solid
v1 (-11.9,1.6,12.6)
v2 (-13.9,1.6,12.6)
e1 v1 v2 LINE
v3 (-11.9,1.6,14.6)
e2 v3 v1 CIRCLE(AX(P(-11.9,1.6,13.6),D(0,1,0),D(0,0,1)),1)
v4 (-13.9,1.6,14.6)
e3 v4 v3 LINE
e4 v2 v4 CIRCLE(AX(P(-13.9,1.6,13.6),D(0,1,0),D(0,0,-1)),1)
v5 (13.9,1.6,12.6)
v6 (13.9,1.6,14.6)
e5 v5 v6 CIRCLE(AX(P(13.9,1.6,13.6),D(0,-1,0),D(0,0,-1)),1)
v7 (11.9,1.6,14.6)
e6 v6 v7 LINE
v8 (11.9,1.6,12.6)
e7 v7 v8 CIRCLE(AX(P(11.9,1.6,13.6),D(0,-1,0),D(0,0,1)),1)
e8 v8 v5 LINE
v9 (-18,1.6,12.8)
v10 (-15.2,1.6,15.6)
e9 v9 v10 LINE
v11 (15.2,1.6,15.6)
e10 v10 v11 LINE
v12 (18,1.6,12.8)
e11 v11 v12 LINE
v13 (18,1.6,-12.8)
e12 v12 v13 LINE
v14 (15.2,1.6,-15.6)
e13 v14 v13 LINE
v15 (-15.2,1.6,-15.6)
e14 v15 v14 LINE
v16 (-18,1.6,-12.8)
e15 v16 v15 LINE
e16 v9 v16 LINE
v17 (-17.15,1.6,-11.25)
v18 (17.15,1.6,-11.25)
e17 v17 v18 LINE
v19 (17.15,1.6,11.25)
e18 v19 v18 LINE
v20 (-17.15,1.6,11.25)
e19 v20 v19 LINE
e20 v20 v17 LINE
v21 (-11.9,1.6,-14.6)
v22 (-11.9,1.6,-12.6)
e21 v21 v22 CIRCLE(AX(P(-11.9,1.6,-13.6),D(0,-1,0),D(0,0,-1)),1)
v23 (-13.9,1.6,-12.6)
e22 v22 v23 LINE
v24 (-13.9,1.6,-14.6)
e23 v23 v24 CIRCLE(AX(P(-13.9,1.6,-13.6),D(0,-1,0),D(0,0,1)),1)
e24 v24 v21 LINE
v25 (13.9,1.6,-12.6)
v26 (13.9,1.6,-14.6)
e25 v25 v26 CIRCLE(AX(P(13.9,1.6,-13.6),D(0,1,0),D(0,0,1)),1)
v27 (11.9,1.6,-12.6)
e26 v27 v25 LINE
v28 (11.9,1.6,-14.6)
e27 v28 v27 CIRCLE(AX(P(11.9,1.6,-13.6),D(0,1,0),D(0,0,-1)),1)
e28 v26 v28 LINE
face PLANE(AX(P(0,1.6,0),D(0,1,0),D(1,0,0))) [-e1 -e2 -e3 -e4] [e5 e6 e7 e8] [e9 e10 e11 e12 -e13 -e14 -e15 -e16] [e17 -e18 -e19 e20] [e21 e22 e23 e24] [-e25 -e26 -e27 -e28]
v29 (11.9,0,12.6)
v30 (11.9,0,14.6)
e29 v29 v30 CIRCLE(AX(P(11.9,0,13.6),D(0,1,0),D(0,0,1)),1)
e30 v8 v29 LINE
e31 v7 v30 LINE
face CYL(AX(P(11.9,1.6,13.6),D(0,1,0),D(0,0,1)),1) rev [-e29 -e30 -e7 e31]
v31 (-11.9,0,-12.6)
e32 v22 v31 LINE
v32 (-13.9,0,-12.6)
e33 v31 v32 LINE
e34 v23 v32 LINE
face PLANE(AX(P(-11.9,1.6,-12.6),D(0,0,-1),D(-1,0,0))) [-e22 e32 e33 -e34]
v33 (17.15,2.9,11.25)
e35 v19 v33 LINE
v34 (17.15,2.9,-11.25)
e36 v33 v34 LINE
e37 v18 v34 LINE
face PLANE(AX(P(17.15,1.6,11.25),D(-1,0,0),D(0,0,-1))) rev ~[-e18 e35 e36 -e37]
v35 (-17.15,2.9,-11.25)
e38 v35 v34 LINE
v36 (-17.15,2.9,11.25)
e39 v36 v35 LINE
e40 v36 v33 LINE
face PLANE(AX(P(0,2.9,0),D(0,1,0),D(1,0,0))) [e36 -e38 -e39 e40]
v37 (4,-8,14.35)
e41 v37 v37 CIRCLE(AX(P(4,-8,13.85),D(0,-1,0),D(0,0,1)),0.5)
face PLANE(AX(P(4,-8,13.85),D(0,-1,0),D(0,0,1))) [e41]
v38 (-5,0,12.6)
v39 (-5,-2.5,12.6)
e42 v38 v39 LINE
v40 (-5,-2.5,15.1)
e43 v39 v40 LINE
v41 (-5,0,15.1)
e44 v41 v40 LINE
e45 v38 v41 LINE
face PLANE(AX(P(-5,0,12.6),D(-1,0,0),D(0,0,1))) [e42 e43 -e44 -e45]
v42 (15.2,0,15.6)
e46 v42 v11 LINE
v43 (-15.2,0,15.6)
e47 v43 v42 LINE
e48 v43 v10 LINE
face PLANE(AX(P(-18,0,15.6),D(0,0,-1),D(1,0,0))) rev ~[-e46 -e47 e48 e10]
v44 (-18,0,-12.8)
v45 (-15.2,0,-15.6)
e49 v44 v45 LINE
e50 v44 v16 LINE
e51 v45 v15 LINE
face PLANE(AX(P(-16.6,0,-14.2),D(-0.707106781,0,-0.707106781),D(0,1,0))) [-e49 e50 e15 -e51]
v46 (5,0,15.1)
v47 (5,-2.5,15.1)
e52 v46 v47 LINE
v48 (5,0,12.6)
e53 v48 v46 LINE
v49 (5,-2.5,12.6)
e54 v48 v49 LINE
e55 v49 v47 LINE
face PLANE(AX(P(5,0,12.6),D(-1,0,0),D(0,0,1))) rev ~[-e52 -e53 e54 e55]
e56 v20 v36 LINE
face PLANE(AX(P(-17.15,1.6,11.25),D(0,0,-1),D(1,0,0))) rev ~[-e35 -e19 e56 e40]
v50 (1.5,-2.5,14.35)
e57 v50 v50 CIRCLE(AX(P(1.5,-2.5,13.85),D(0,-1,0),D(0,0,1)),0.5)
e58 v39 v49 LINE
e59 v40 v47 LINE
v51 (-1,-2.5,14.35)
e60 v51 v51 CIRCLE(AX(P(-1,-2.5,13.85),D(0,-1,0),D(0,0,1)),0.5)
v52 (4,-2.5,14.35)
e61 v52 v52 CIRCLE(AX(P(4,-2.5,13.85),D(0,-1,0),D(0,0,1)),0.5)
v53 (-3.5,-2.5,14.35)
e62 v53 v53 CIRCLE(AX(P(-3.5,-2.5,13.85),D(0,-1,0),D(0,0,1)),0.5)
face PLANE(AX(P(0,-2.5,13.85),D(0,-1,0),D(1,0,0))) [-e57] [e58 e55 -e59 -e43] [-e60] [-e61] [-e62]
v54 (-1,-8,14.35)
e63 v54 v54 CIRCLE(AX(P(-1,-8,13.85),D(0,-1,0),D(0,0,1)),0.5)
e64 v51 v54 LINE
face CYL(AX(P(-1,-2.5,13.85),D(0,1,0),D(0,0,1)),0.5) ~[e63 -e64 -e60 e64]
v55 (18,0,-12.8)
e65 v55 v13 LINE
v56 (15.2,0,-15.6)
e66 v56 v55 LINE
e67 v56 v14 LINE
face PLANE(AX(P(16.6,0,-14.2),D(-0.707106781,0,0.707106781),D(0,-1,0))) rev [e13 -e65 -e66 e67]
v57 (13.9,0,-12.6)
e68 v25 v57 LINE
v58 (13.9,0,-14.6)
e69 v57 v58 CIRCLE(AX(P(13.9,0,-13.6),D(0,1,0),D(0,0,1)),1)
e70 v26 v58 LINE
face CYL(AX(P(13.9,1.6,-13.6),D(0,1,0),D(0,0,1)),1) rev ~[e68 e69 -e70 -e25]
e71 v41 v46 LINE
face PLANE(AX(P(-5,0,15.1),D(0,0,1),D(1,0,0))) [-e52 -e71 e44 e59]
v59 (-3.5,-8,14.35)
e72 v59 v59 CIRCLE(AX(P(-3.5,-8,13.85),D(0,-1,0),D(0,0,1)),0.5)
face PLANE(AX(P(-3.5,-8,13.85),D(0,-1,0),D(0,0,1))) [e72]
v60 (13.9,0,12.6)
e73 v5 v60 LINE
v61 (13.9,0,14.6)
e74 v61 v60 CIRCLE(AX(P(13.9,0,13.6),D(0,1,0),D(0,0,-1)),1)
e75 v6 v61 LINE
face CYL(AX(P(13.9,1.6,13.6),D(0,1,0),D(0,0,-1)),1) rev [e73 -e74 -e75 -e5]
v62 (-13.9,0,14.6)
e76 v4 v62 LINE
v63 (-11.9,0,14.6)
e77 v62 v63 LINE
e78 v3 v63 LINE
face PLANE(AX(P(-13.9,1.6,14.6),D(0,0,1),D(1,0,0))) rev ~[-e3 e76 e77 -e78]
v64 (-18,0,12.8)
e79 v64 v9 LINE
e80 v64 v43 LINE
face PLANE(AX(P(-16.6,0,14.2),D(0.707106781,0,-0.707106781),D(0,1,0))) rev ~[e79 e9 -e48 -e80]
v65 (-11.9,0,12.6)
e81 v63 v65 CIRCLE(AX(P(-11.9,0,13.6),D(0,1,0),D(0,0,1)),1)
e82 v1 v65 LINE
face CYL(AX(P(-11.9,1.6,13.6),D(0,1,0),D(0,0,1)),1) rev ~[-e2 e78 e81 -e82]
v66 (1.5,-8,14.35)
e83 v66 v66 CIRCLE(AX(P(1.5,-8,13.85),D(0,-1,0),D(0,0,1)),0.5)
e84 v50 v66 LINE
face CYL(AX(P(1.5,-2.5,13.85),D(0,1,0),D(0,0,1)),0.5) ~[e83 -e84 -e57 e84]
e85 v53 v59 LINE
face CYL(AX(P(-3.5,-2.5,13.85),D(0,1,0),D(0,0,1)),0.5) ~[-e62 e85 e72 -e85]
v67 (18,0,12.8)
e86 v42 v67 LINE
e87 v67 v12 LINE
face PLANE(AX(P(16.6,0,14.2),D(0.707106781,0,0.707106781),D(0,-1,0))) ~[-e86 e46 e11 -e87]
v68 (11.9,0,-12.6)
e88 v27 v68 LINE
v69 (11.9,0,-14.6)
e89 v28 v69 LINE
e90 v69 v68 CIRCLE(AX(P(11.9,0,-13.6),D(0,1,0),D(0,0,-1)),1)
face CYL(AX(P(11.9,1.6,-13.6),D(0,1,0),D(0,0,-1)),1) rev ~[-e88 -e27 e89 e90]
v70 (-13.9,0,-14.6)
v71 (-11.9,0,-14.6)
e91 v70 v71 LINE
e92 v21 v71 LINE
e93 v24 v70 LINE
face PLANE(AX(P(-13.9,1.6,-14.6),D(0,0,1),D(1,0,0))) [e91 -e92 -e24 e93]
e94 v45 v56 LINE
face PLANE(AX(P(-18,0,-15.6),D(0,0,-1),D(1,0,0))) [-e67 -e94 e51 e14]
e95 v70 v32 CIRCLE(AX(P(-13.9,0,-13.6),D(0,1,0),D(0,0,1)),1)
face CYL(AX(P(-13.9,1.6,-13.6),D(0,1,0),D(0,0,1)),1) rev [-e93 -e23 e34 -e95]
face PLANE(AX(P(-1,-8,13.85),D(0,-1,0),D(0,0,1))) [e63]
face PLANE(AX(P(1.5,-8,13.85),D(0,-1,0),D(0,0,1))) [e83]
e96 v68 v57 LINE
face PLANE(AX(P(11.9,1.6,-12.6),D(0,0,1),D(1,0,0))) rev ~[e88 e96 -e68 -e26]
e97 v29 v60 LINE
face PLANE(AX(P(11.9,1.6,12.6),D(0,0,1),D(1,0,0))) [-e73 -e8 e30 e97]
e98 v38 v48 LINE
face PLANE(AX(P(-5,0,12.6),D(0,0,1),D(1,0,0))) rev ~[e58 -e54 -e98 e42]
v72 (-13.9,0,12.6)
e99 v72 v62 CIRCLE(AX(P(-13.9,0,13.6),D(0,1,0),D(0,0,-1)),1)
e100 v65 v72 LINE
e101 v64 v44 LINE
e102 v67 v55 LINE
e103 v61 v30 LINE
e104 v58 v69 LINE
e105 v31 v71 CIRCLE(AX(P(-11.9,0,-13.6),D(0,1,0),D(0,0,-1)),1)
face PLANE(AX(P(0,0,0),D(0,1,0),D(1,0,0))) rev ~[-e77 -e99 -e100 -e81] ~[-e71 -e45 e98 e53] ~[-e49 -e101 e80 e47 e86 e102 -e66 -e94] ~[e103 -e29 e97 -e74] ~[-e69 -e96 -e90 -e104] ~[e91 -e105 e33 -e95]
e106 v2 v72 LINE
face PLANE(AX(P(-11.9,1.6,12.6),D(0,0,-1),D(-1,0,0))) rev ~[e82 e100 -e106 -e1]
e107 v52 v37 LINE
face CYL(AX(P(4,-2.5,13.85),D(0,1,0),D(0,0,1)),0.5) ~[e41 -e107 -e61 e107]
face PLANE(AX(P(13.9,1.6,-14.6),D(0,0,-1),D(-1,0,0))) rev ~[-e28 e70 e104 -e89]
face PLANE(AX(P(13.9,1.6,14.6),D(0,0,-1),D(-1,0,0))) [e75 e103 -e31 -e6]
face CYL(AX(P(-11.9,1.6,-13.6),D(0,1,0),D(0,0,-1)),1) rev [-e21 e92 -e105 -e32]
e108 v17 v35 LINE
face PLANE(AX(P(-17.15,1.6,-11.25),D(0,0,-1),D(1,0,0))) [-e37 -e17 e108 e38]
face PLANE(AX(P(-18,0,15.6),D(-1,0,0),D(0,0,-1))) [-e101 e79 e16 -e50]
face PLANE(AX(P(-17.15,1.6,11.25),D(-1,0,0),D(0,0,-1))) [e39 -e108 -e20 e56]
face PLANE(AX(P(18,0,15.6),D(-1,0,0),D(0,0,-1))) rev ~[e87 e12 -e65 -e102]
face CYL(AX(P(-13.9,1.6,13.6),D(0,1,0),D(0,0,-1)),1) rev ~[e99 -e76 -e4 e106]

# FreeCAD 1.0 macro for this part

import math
import FreeCAD as App
import Part
import Sketcher


def edges_at(feature, points):
    """Names of the edges that pass closest to the given points."""
    edges = feature.Shape.Edges
    near = lambda p: min(range(len(edges)), key=lambda i: edges[i].distToShape(Part.Vertex(*p))[0])
    return sorted({f"Edge{near(p) + 1}" for p in points})


def add_polygon(sketch, points):
    """Adds a closed chain of lines whose ends are joined by coincident constraints."""
    first, n = sketch.GeometryCount, len(points)
    for a, b in zip(points, points[1:] + points[:1]):
        sketch.addGeometry(Part.LineSegment(App.Vector(*a, 0), App.Vector(*b, 0)), False)
    for i in range(n):
        sketch.addConstraint(Sketcher.Constraint("Coincident", first + i, 2, first + (i + 1) % n, 1))

doc = App.newDocument("Part")
body = doc.addObject("PartDesign::Body", "Body")

# Sketch on XZ plane
sketch1 = body.newObject("Sketcher::SketchObject", "Sketch")
sketch1.AttachmentSupport = (doc.getObject("XZ_Plane"), [""])
sketch1.MapMode = "FlatFace"
add_polygon(sketch1, [(-18, -15.6), (-18, 15.6), (18, 15.6), (18, -15.6)])  # lines 0-3
sketch1.addConstraint(Sketcher.Constraint("Vertical", 0))
sketch1.addConstraint(Sketcher.Constraint("Horizontal", 1))
sketch1.addConstraint(Sketcher.Constraint("Vertical", 2))
sketch1.addConstraint(Sketcher.Constraint("Horizontal", 3))
sketch1.addConstraint(Sketcher.Constraint("Symmetric", 0, 2, 2, 2, -1, 1))
sketch1.addConstraint(Sketcher.Constraint("DistanceX", 1, 1, 1, 2, 36.0))
sketch1.addConstraint(Sketcher.Constraint("DistanceY", 0, 1, 0, 2, 31.2))
pad1 = body.newObject("PartDesign::Pad", "Pad")
pad1.Profile = sketch1
pad1.Length = 1.6
pad1.Reversed = True

# Sketch on XZ plane
sketch2 = body.newObject("Sketcher::SketchObject", "Sketch001")
sketch2.AttachmentSupport = (doc.getObject("XZ_Plane"), [""])
sketch2.MapMode = "FlatFace"
sketch2.AttachmentOffset = App.Placement(App.Vector(0, 0, -1.6), App.Rotation())
add_polygon(sketch2, [(-17.15, -11.25), (-17.15, 11.25), (17.15, 11.25), (17.15, -11.25)])  # lines 0-3
sketch2.addConstraint(Sketcher.Constraint("Vertical", 0))
sketch2.addConstraint(Sketcher.Constraint("Horizontal", 1))
sketch2.addConstraint(Sketcher.Constraint("Vertical", 2))
sketch2.addConstraint(Sketcher.Constraint("Horizontal", 3))
sketch2.addConstraint(Sketcher.Constraint("Symmetric", 0, 2, 2, 2, -1, 1))
sketch2.addConstraint(Sketcher.Constraint("DistanceX", 1, 1, 1, 2, 34.3))
sketch2.addConstraint(Sketcher.Constraint("DistanceY", 0, 1, 0, 2, 22.5))
pad2 = body.newObject("PartDesign::Pad", "Pad001")
pad2.Profile = sketch2
pad2.Length = 1.3
pad2.Reversed = True

# Sketch on XZ plane
sketch3 = body.newObject("Sketcher::SketchObject", "Sketch002")
sketch3.AttachmentSupport = (doc.getObject("XZ_Plane"), [""])
sketch3.MapMode = "FlatFace"
sketch3.AttachmentOffset = App.Placement(App.Vector(0, 0, -1.6), App.Rotation())
sketch3.addGeometry(Part.LineSegment(App.Vector(-11.9, -14.6, 0), App.Vector(-13.9, -14.6, 0)), False)
sketch3.addGeometry(Part.ArcOfCircle(Part.Circle(App.Vector(-13.9, -13.6, 0), App.Vector(0, 0, 1), 1), math.radians(90), math.radians(270)), False)
sketch3.addGeometry(Part.LineSegment(App.Vector(-13.9, -12.6, 0), App.Vector(-11.9, -12.6, 0)), False)
sketch3.addGeometry(Part.ArcOfCircle(Part.Circle(App.Vector(-11.9, -13.6, 0), App.Vector(0, 0, 1), 1), math.radians(-90), math.radians(90)), False)
sketch3.addGeometry(Part.LineSegment(App.Vector(13.9, -14.6, 0), App.Vector(11.9, -14.6, 0)), False)
sketch3.addGeometry(Part.ArcOfCircle(Part.Circle(App.Vector(11.9, -13.6, 0), App.Vector(0, 0, 1), 1), math.radians(90), math.radians(270)), False)
sketch3.addGeometry(Part.LineSegment(App.Vector(11.9, -12.6, 0), App.Vector(13.9, -12.6, 0)), False)
sketch3.addGeometry(Part.ArcOfCircle(Part.Circle(App.Vector(13.9, -13.6, 0), App.Vector(0, 0, 1), 1), math.radians(-90), math.radians(90)), False)
sketch3.addGeometry(Part.LineSegment(App.Vector(11.9, 14.6, 0), App.Vector(13.9, 14.6, 0)), False)
sketch3.addGeometry(Part.ArcOfCircle(Part.Circle(App.Vector(13.9, 13.6, 0), App.Vector(0, 0, 1), 1), math.radians(-90), math.radians(90)), False)
sketch3.addGeometry(Part.LineSegment(App.Vector(13.9, 12.6, 0), App.Vector(11.9, 12.6, 0)), False)
sketch3.addGeometry(Part.ArcOfCircle(Part.Circle(App.Vector(11.9, 13.6, 0), App.Vector(0, 0, 1), 1), math.radians(90), math.radians(270)), False)
sketch3.addGeometry(Part.LineSegment(App.Vector(-13.9, 14.6, 0), App.Vector(-11.9, 14.6, 0)), False)
sketch3.addGeometry(Part.ArcOfCircle(Part.Circle(App.Vector(-11.9, 13.6, 0), App.Vector(0, 0, 1), 1), math.radians(-90), math.radians(90)), False)
sketch3.addGeometry(Part.LineSegment(App.Vector(-11.9, 12.6, 0), App.Vector(-13.9, 12.6, 0)), False)
sketch3.addGeometry(Part.ArcOfCircle(Part.Circle(App.Vector(-13.9, 13.6, 0), App.Vector(0, 0, 1), 1), math.radians(90), math.radians(270)), False)
sketch3.addConstraint(Sketcher.Constraint("Tangent", 0, 2, 1, 2))
sketch3.addConstraint(Sketcher.Constraint("Tangent", 1, 1, 2, 1))
sketch3.addConstraint(Sketcher.Constraint("Tangent", 2, 2, 3, 2))
sketch3.addConstraint(Sketcher.Constraint("Tangent", 3, 1, 0, 1))
sketch3.addConstraint(Sketcher.Constraint("Tangent", 4, 2, 5, 2))
sketch3.addConstraint(Sketcher.Constraint("Tangent", 5, 1, 6, 1))
sketch3.addConstraint(Sketcher.Constraint("Tangent", 6, 2, 7, 2))
sketch3.addConstraint(Sketcher.Constraint("Tangent", 7, 1, 4, 1))
sketch3.addConstraint(Sketcher.Constraint("Tangent", 8, 2, 9, 2))
sketch3.addConstraint(Sketcher.Constraint("Tangent", 9, 1, 10, 1))
sketch3.addConstraint(Sketcher.Constraint("Tangent", 10, 2, 11, 2))
sketch3.addConstraint(Sketcher.Constraint("Tangent", 11, 1, 8, 1))
sketch3.addConstraint(Sketcher.Constraint("Tangent", 12, 2, 13, 2))
sketch3.addConstraint(Sketcher.Constraint("Tangent", 13, 1, 14, 1))
sketch3.addConstraint(Sketcher.Constraint("Tangent", 14, 2, 15, 2))
sketch3.addConstraint(Sketcher.Constraint("Tangent", 15, 1, 12, 1))
sketch3.addConstraint(Sketcher.Constraint("Horizontal", 0))
sketch3.addConstraint(Sketcher.Constraint("Horizontal", 2))
sketch3.addConstraint(Sketcher.Constraint("Horizontal", 4))
sketch3.addConstraint(Sketcher.Constraint("Horizontal", 6))
sketch3.addConstraint(Sketcher.Constraint("Horizontal", 8))
sketch3.addConstraint(Sketcher.Constraint("Horizontal", 10))
sketch3.addConstraint(Sketcher.Constraint("Horizontal", 12))
sketch3.addConstraint(Sketcher.Constraint("Horizontal", 14))
sketch3.addConstraint(Sketcher.Constraint("Equal", 3, 5))
sketch3.addConstraint(Sketcher.Constraint("Equal", 7, 9))
sketch3.addConstraint(Sketcher.Constraint("Equal", 11, 13))
sketch3.addConstraint(Sketcher.Constraint("Symmetric", 1, 3, 9, 3, -1, 1))
sketch3.addConstraint(Sketcher.Constraint("Symmetric", 5, 3, 13, 3, -1, 1))
sketch3.addConstraint(Sketcher.Constraint("Symmetric", 3, 3, 5, 3, -2))
sketch3.addConstraint(Sketcher.Constraint("Vertical", 7, 3, 9, 3))
sketch3.addConstraint(Sketcher.Constraint("Vertical", 5, 3, 11, 3))
sketch3.addConstraint(Sketcher.Constraint("Vertical", 1, 3, 15, 3))
sketch3.addConstraint(Sketcher.Constraint("Radius", 1, 1.0))
sketch3.addConstraint(Sketcher.Constraint("DistanceX", 0, 2, 0, 1, 2.0))
sketch3.addConstraint(Sketcher.Constraint("DistanceX", 1, 3, -1, 1, 13.9))
sketch3.addConstraint(Sketcher.Constraint("DistanceY", 1, 3, -1, 1, 13.6))
pocket1 = body.newObject("PartDesign::Pocket", "Pocket")
pocket1.Profile = sketch3
pocket1.Type = "ThroughAll"
pocket1.Reversed = True
doc.recompute()

chamfer = body.newObject("PartDesign::Chamfer", "Chamfer")
chamfer.Base = (pocket1, edges_at(pocket1, [
    (18, 0.8, 15.6),
    (-18, 0.8, 15.6),
    (-18, 0.8, -15.6),
    (18, 0.8, -15.6),
]))
chamfer.Size = 2.8

# Sketch on XZ plane
sketch4 = body.newObject("Sketcher::SketchObject", "Sketch003")
sketch4.AttachmentSupport = (doc.getObject("XZ_Plane"), [""])
sketch4.MapMode = "FlatFace"
add_polygon(sketch4, [(-5, 15.1), (-5, 12.6), (5, 12.6), (5, 15.1)])  # lines 0-3
sketch4.addConstraint(Sketcher.Constraint("Vertical", 0))
sketch4.addConstraint(Sketcher.Constraint("Horizontal", 1))
sketch4.addConstraint(Sketcher.Constraint("Vertical", 2))
sketch4.addConstraint(Sketcher.Constraint("Horizontal", 3))
sketch4.addConstraint(Sketcher.Constraint("DistanceX", 1, 1, 1, 2, 10.0))
sketch4.addConstraint(Sketcher.Constraint("DistanceY", 0, 2, 0, 1, 2.5))
sketch4.addConstraint(Sketcher.Constraint("DistanceX", 0, 2, -1, 1, 5.0))
sketch4.addConstraint(Sketcher.Constraint("DistanceY", -1, 1, 0, 2, 12.6))
pad3 = body.newObject("PartDesign::Pad", "Pad002")
pad3.Profile = sketch4
pad3.Length = 2.5

# Sketch on XZ plane
sketch5 = body.newObject("Sketcher::SketchObject", "Sketch004")
sketch5.AttachmentSupport = (doc.getObject("XZ_Plane"), [""])
sketch5.MapMode = "FlatFace"
sketch5.AttachmentOffset = App.Placement(App.Vector(0, 0, 2.5), App.Rotation())
sketch5.addGeometry(Part.Circle(App.Vector(-3.5, 13.85, 0), App.Vector(0, 0, 1), 0.5), False)
sketch5.addConstraint(Sketcher.Constraint("Diameter", 0, 1.0))
sketch5.addConstraint(Sketcher.Constraint("DistanceX", 0, 3, -1, 1, 3.5))
sketch5.addConstraint(Sketcher.Constraint("DistanceY", -1, 1, 0, 3, 13.85))
pad4 = body.newObject("PartDesign::Pad", "Pad003")
pad4.Profile = sketch5
pad4.Length = 5.5
doc.recompute()

linearpattern = body.newObject("PartDesign::LinearPattern", "LinearPattern")
linearpattern.Originals = [pad4]
linearpattern.Direction = (doc.getObject("X_Axis"), [""])
linearpattern.Mode = "offset"
linearpattern.Offset = 2.5
linearpattern.Occurrences = 4
body.Tip = linearpattern

doc.recompute()
